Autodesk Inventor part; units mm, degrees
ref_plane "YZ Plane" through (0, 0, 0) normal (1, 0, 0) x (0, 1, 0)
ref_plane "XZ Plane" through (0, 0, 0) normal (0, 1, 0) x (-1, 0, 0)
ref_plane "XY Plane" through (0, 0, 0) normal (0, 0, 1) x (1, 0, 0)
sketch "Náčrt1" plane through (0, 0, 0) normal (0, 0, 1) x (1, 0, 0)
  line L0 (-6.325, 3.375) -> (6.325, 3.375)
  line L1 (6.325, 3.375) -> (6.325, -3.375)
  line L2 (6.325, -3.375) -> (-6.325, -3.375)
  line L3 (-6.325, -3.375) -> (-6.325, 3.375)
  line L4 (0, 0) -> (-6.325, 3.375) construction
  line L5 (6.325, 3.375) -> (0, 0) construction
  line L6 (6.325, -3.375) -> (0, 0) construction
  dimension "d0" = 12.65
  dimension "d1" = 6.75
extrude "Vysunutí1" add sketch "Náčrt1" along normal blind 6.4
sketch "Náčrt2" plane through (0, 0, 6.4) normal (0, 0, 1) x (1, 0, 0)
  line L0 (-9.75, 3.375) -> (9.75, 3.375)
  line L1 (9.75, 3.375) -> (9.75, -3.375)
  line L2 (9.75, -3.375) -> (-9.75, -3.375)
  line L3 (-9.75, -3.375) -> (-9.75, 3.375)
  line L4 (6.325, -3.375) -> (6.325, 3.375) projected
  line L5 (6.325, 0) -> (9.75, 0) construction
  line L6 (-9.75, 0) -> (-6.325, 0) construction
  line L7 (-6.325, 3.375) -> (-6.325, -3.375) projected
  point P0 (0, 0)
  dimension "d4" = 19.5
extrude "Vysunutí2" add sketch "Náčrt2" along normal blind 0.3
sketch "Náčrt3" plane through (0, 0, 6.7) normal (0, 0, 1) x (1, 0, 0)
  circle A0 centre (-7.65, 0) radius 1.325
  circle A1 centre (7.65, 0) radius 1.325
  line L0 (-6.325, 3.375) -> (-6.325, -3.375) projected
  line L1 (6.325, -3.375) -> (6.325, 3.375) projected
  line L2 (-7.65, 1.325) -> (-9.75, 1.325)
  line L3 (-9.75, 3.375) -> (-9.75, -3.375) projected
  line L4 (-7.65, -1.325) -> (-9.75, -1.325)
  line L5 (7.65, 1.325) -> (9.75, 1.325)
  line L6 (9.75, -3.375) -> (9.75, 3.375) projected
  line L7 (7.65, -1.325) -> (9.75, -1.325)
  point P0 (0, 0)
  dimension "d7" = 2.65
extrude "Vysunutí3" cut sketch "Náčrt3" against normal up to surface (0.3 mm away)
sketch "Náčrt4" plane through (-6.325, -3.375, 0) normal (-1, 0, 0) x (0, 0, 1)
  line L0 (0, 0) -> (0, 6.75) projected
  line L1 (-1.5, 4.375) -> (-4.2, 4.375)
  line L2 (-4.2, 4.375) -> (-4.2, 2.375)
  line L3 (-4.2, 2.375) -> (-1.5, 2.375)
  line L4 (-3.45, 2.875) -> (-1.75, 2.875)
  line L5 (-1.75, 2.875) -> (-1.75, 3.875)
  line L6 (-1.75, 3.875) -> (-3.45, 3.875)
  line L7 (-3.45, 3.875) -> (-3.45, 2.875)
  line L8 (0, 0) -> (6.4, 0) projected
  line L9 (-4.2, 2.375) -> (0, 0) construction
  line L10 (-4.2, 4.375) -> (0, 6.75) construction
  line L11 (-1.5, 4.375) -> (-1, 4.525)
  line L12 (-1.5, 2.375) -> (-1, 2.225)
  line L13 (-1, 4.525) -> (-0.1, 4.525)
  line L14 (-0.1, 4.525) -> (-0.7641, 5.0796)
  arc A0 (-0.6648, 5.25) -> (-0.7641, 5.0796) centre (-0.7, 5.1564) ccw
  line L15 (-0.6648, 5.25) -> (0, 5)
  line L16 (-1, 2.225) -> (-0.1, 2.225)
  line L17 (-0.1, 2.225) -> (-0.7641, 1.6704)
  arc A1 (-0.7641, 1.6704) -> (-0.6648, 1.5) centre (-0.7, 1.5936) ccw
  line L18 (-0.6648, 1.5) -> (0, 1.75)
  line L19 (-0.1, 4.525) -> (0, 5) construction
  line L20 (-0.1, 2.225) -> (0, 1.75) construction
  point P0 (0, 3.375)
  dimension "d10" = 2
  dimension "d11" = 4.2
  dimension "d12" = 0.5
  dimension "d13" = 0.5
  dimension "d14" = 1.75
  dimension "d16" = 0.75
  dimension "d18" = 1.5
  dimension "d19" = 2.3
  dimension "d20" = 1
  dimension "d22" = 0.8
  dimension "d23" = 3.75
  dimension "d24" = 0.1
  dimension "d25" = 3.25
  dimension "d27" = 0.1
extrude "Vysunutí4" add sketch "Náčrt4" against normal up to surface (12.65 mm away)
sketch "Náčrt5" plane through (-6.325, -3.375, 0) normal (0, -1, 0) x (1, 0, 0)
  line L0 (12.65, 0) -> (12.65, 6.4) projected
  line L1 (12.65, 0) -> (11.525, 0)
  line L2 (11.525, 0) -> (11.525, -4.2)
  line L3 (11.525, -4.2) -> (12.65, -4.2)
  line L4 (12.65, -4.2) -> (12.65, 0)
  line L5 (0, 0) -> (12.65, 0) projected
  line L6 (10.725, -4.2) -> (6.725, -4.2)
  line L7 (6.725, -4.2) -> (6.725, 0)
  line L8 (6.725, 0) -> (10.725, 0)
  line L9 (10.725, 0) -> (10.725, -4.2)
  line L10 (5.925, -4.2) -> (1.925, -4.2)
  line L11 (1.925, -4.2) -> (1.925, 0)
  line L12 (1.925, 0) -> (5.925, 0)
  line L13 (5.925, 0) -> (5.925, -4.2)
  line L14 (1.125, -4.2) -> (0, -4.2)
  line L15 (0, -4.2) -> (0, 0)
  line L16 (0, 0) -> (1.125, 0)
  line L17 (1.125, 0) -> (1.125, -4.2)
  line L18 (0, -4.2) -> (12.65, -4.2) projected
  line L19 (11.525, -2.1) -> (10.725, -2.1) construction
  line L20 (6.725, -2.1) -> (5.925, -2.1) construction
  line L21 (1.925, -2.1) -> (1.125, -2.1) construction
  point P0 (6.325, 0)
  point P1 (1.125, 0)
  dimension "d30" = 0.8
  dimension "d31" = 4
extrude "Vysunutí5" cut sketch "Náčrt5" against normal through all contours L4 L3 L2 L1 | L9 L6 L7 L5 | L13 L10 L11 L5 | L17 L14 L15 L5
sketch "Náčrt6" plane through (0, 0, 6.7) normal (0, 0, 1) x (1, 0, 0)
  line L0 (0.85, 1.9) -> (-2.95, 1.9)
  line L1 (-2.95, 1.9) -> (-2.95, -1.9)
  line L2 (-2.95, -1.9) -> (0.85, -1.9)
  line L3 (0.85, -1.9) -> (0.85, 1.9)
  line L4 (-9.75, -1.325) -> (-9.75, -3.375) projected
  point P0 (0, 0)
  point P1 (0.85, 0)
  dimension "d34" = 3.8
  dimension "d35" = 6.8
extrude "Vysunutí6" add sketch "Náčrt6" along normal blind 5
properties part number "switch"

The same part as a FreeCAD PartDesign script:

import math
import FreeCAD as App
import Part
import Sketcher
from FreeCAD import Vector
Q = App.Units.Quantity


def add_polygon(sketch, points):
    """Adds a closed chain of lines whose ends are joined by coincident constraints."""
    first, n = sketch.GeometryCount, len(points)
    for a, b in zip(points, points[1:] + points[:1]):
        sketch.addGeometry(Part.LineSegment(App.Vector(*a, 0), App.Vector(*b, 0)), False)
    for i in range(n):
        sketch.addConstraint(Sketcher.Constraint("Coincident", first + i, 2, first + (i + 1) % n, 1))

doc = App.newDocument("Part")
body = doc.addObject("PartDesign::Body", "Body")

sketch1 = body.newObject("Sketcher::SketchObject", "Sketch")
sketch1.AttachmentSupport = (doc.getObject("XY_Plane"), [""])
sketch1.MapMode = "FlatFace"
add_polygon(sketch1, [(6, 3), (-6, 3), (-6, -3), (6, -3)])
sketch1.addConstraint([
    Sketcher.Constraint("Horizontal", 0),
    Sketcher.Constraint("Vertical", 1),
    Sketcher.Constraint("Horizontal", 2),
    Sketcher.Constraint("Vertical", 3),
    Sketcher.Constraint("Symmetric", 0, 2, 2, 2, -1, 1),
    Sketcher.Constraint("DistanceX", 0, 2, 0, 1, 12.65),
    Sketcher.Constraint("DistanceY", 1, 2, 1, 1, 6.75),
])
pad1 = body.newObject("PartDesign::Pad", "Pad")
pad1.Profile = sketch1
pad1.Length = 6.4

sketch2 = body.newObject("Sketcher::SketchObject", "Sketch001")
sketch2.AttachmentSupport = (doc.getObject("XY_Plane"), [""])
sketch2.MapMode = "FlatFace"
sketch2.AttachmentOffset = App.Placement(Vector(0, 0, 6.4), App.Rotation())
add_polygon(sketch2, [(-10, 3), (-10, -3), (10, -3), (10, 3)])
sketch2.addConstraint([
    Sketcher.Constraint("Vertical", 0),
    Sketcher.Constraint("Horizontal", 1),
    Sketcher.Constraint("Vertical", 2),
    Sketcher.Constraint("Horizontal", 3),
    Sketcher.Constraint("Symmetric", 0, 2, 2, 2, -1, 1),
    Sketcher.Constraint("DistanceX", 1, 1, 1, 2, 19.5),
    Sketcher.Constraint("DistanceY", 0, 2, 0, 1, 6.75),
])
pad2 = body.newObject("PartDesign::Pad", "Pad001")
pad2.Profile = sketch2
pad2.Length = 0.3

sketch3 = body.newObject("Sketcher::SketchObject", "Sketch002")
sketch3.AttachmentSupport = (doc.getObject("XY_Plane"), [""])
sketch3.MapMode = "FlatFace"
sketch3.AttachmentOffset = App.Placement(Vector(0, 0, 6.7), App.Rotation())
sketch3.addGeometry([
    Part.ArcOfCircle(Part.Circle(Vector(-7.7, 0, 0), Vector(0, 0, 1), 1.3), math.radians(-90), math.radians(90)),
    Part.LineSegment(Vector(-7.7, 1.3, 0), Vector(-9.8, 1.3, 0)),
    Part.LineSegment(Vector(-9.8, 1.3, 0), Vector(-9.8, -1.3, 0)),
    Part.LineSegment(Vector(-9.8, -1.3, 0), Vector(-7.7, -1.3, 0)),
    Part.LineSegment(Vector(7.7, -1.3, 0), Vector(9.8, -1.3, 0)),
    Part.LineSegment(Vector(9.8, -1.3, 0), Vector(9.8, 1.3, 0)),
    Part.LineSegment(Vector(9.8, 1.3, 0), Vector(7.7, 1.3, 0)),
    Part.ArcOfCircle(Part.Circle(Vector(7.7, 0, 0), Vector(0, 0, 1), 1.3), math.radians(90), math.radians(270)),
], False)
sketch3.addConstraint([
    Sketcher.Constraint("Tangent", 0, 2, 1, 1),
    Sketcher.Constraint("Coincident", 1, 2, 2, 1),
    Sketcher.Constraint("Coincident", 2, 2, 3, 1),
    Sketcher.Constraint("Tangent", 3, 2, 0, 1),
    Sketcher.Constraint("Coincident", 4, 2, 5, 1),
    Sketcher.Constraint("Coincident", 5, 2, 6, 1),
    Sketcher.Constraint("Tangent", 6, 2, 7, 1),
    Sketcher.Constraint("Tangent", 7, 2, 4, 1),
    Sketcher.Constraint("Horizontal", 1),
    Sketcher.Constraint("Vertical", 2),
    Sketcher.Constraint("Horizontal", 3),
    Sketcher.Constraint("Horizontal", 4),
    Sketcher.Constraint("Vertical", 5),
    Sketcher.Constraint("Horizontal", 6),
    Sketcher.Constraint("Equal", 0, 7),
    Sketcher.Constraint("Symmetric", 0, 3, 7, 3, -1, 1),
    Sketcher.Constraint("Symmetric", 2, 2, 4, 2, -2),
    Sketcher.Constraint("Radius", 0, 1.325),
    Sketcher.Constraint("DistanceX", 1, 2, 1, 1, 2.1),
    Sketcher.Constraint("DistanceX", 0, 3, 7, 3, 15.3),
])
pocket1 = body.newObject("PartDesign::Pocket", "Pocket")
pocket1.Profile = sketch3
pocket1.Length = 0.3

sketch4 = body.newObject("Sketcher::SketchObject", "Sketch003")
sketch4.AttachmentSupport = (doc.getObject("YZ_Plane"), [""])
sketch4.MapMode = "FlatFace"
sketch4.AttachmentOffset = App.Placement(Vector(0, 0, -6.325), App.Rotation())
sketch4.addGeometry(Part.LineSegment(Vector(-1.88, -0.66, 0), Vector(-1.62, 0, 0)), False)
sketch4.addGeometry(Part.LineSegment(Vector(-1.62, 0, 0), Vector(1.62, 0, 0)), False)
sketch4.addGeometry(Part.LineSegment(Vector(1.62, 0, 0), Vector(1.88, -0.66, 0)), False)
sketch4.addGeometry(Part.ArcOfCircle(Part.Circle(Vector(1.78, -0.7, 0), Vector(0, 0, 1), 0.1), math.radians(-140), math.radians(21)), False)
sketch4.addGeometry(Part.LineSegment(Vector(1.7, -0.76, 0), Vector(1.15, -0.1, 0)), False)
sketch4.addGeometry(Part.LineSegment(Vector(1.15, -0.1, 0), Vector(1.15, -1, 0)), False)
sketch4.addGeometry(Part.LineSegment(Vector(1.15, -1, 0), Vector(1, -1.5, 0)), False)
sketch4.addGeometry(Part.LineSegment(Vector(1, -1.5, 0), Vector(1, -4.2, 0)), False)
sketch4.addGeometry(Part.LineSegment(Vector(1, -4.2, 0), Vector(-1, -4.2, 0)), False)
sketch4.addGeometry(Part.LineSegment(Vector(-1, -4.2, 0), Vector(-1, -1.5, 0)), False)
sketch4.addGeometry(Part.LineSegment(Vector(-1, -1.5, 0), Vector(-1.15, -1, 0)), False)
sketch4.addGeometry(Part.LineSegment(Vector(-1.15, -1, 0), Vector(-1.15, -0.1, 0)), False)
sketch4.addGeometry(Part.LineSegment(Vector(-1.15, -0.1, 0), Vector(-1.7, -0.76, 0)), False)
sketch4.addGeometry(Part.ArcOfCircle(Part.Circle(Vector(-1.78, -0.7, 0), Vector(0, 0, 1), 0.1), math.radians(159), math.radians(320)), False)
add_polygon(sketch4, [(-0.5, -1.75), (-0.5, -3.45), (0.5, -3.45), (0.5, -1.75)])
sketch4.addConstraint([
    Sketcher.Constraint("Coincident", 0, 2, 1, 1),
    Sketcher.Constraint("Coincident", 1, 2, 2, 1),
    Sketcher.Constraint("Tangent", 2, 2, 3, 2),
    Sketcher.Constraint("Tangent", 3, 1, 4, 1),
    Sketcher.Constraint("Coincident", 4, 2, 5, 1),
    Sketcher.Constraint("Coincident", 5, 2, 6, 1),
    Sketcher.Constraint("Coincident", 6, 2, 7, 1),
    Sketcher.Constraint("Coincident", 7, 2, 8, 1),
    Sketcher.Constraint("Coincident", 8, 2, 9, 1),
    Sketcher.Constraint("Coincident", 9, 2, 10, 1),
    Sketcher.Constraint("Coincident", 10, 2, 11, 1),
    Sketcher.Constraint("Coincident", 11, 2, 12, 1),
    Sketcher.Constraint("Tangent", 12, 2, 13, 2),
    Sketcher.Constraint("Tangent", 13, 1, 0, 1),
    Sketcher.Constraint("Horizontal", 1),
    Sketcher.Constraint("Vertical", 5),
    Sketcher.Constraint("Vertical", 7),
    Sketcher.Constraint("Horizontal", 8),
    Sketcher.Constraint("Vertical", 9),
    Sketcher.Constraint("Vertical", 11),
    Sketcher.Constraint("Vertical", 14),
    Sketcher.Constraint("Horizontal", 15),
    Sketcher.Constraint("Vertical", 16),
    Sketcher.Constraint("Horizontal", 17),
    Sketcher.Constraint("Equal", 3, 13),
    Sketcher.Constraint("Symmetric", 0, 2, 1, 2, -1, 1),
    Sketcher.Constraint("Symmetric", 3, 3, 13, 3, -2),
    Sketcher.Constraint("Symmetric", 6, 2, 9, 2, -2),
    Sketcher.Constraint("Symmetric", 5, 2, 10, 2, -2),
    Sketcher.Constraint("Horizontal", 4, 2, 11, 2),
    Sketcher.Constraint("Radius", 3, 0.1),
    Sketcher.Constraint("DistanceX", 8, 2, 8, 1, 2.0),
    Sketcher.Constraint("DistanceX", 15, 1, 15, 2, 1.0),
    Sketcher.Constraint("DistanceY", 5, 2, -1, 1, 1.0),
    Sketcher.Constraint("DistanceX", 1, 1, 1, 2, 3.25),
    Sketcher.Constraint("DistanceY", 4, 2, -1, 1, 0.1),
    Sketcher.Constraint("DistanceY", 6, 2, -1, 1, 1.5),
    Sketcher.Constraint("DistanceY", 7, 2, -1, 1, 4.2),
    Sketcher.Constraint("DistanceX", 14, 2, -1, 1, 0.5),
    Sketcher.Constraint("DistanceY", 6, 2, 3, 3, 0.8),
    Sketcher.Constraint("DistanceX", 10, 2, 5, 2, 2.3),
    Sketcher.Constraint("DistanceY", 16, 2, -1, 1, 1.75),
    Sketcher.Constraint("DistanceY", 8, 2, 14, 2, 0.75),
    Sketcher.Constraint("Angle", 0, Q("69.391 deg")),
])
pad3 = body.newObject("PartDesign::Pad", "Pad002")
pad3.Profile = sketch4
pad3.Length = 12.65

sketch5 = body.newObject("Sketcher::SketchObject", "Sketch004")
sketch5.AttachmentSupport = (doc.getObject("XZ_Plane"), [""])
sketch5.MapMode = "FlatFace"
sketch5.AttachmentOffset = App.Placement(Vector(0, 0, 3.375), App.Rotation())
add_polygon(sketch5, [(6.3, -4.2), (6.3, 0), (5.2, 0), (5.2, -4.2)])
add_polygon(sketch5, [(4.4, -4.2), (4.4, 0), (0.4, 0), (0.4, -4.2)])
add_polygon(sketch5, [(-0.4, -4.2), (-0.4, 0), (-4.4, 0), (-4.4, -4.2)])
add_polygon(sketch5, [(-5.2, -4.2), (-5.2, 0), (-6.3, 0), (-6.3, -4.2)])
sketch5.addConstraint([
    Sketcher.Constraint("Vertical", 0),
    Sketcher.Constraint("Horizontal", 1),
    Sketcher.Constraint("Vertical", 2),
    Sketcher.Constraint("Horizontal", 3),
    Sketcher.Constraint("Vertical", 4),
    Sketcher.Constraint("Horizontal", 5),
    Sketcher.Constraint("Vertical", 6),
    Sketcher.Constraint("Horizontal", 7),
    Sketcher.Constraint("Vertical", 8),
    Sketcher.Constraint("Horizontal", 9),
    Sketcher.Constraint("Vertical", 10),
    Sketcher.Constraint("Horizontal", 11),
    Sketcher.Constraint("Vertical", 12),
    Sketcher.Constraint("Horizontal", 13),
    Sketcher.Constraint("Vertical", 14),
    Sketcher.Constraint("Horizontal", 15),
    Sketcher.Constraint("Symmetric", 5, 2, 8, 2, -1, 1),
    Sketcher.Constraint("Symmetric", 1, 2, 12, 2, -1, 1),
    Sketcher.Constraint("Symmetric", 4, 2, 9, 2, -2),
    Sketcher.Constraint("Symmetric", 0, 2, 13, 2, -2),
    Sketcher.Constraint("Horizontal", 3, 2, 6, 2),
    Sketcher.Constraint("Horizontal", 7, 2, 10, 2),
    Sketcher.Constraint("Horizontal", 11, 2, 14, 2),
    Sketcher.Constraint("DistanceX", 5, 2, 5, 1, 4.0),
    Sketcher.Constraint("DistanceX", 4, 2, 1, 2, 0.8),
    Sketcher.Constraint("DistanceX", 8, 2, 5, 2, 0.8),
    Sketcher.Constraint("DistanceY", 0, 1, 0, 2, 4.2),
    Sketcher.Constraint("DistanceX", 1, 2, 1, 1, 1.125),
])
pocket2 = body.newObject("PartDesign::Pocket", "Pocket001")
pocket2.Profile = sketch5
pocket2.Type = "ThroughAll"

sketch6 = body.newObject("Sketcher::SketchObject", "Sketch005")
sketch6.AttachmentSupport = (doc.getObject("XY_Plane"), [""])
sketch6.MapMode = "FlatFace"
sketch6.AttachmentOffset = App.Placement(Vector(0, 0, 6.7), App.Rotation())
add_polygon(sketch6, [(0.8, -1.9), (0.8, 1.9), (-3, 1.9), (-3, -1.9)])
sketch6.addConstraint([
    Sketcher.Constraint("Vertical", 0),
    Sketcher.Constraint("Horizontal", 1),
    Sketcher.Constraint("Vertical", 2),
    Sketcher.Constraint("Horizontal", 3),
    Sketcher.Constraint("Equal", 3, 0),
    Sketcher.Constraint("DistanceX", 1, 2, 1, 1, 3.8),
    Sketcher.Constraint("DistanceY", -1, 1, 0, 2, 1.9),
    Sketcher.Constraint("DistanceX", -1, 1, 0, 2, 0.85),
])
pad4 = body.newObject("PartDesign::Pad", "Pad003")
pad4.Profile = sketch6
pad4.Length = 5

doc.recompute()
